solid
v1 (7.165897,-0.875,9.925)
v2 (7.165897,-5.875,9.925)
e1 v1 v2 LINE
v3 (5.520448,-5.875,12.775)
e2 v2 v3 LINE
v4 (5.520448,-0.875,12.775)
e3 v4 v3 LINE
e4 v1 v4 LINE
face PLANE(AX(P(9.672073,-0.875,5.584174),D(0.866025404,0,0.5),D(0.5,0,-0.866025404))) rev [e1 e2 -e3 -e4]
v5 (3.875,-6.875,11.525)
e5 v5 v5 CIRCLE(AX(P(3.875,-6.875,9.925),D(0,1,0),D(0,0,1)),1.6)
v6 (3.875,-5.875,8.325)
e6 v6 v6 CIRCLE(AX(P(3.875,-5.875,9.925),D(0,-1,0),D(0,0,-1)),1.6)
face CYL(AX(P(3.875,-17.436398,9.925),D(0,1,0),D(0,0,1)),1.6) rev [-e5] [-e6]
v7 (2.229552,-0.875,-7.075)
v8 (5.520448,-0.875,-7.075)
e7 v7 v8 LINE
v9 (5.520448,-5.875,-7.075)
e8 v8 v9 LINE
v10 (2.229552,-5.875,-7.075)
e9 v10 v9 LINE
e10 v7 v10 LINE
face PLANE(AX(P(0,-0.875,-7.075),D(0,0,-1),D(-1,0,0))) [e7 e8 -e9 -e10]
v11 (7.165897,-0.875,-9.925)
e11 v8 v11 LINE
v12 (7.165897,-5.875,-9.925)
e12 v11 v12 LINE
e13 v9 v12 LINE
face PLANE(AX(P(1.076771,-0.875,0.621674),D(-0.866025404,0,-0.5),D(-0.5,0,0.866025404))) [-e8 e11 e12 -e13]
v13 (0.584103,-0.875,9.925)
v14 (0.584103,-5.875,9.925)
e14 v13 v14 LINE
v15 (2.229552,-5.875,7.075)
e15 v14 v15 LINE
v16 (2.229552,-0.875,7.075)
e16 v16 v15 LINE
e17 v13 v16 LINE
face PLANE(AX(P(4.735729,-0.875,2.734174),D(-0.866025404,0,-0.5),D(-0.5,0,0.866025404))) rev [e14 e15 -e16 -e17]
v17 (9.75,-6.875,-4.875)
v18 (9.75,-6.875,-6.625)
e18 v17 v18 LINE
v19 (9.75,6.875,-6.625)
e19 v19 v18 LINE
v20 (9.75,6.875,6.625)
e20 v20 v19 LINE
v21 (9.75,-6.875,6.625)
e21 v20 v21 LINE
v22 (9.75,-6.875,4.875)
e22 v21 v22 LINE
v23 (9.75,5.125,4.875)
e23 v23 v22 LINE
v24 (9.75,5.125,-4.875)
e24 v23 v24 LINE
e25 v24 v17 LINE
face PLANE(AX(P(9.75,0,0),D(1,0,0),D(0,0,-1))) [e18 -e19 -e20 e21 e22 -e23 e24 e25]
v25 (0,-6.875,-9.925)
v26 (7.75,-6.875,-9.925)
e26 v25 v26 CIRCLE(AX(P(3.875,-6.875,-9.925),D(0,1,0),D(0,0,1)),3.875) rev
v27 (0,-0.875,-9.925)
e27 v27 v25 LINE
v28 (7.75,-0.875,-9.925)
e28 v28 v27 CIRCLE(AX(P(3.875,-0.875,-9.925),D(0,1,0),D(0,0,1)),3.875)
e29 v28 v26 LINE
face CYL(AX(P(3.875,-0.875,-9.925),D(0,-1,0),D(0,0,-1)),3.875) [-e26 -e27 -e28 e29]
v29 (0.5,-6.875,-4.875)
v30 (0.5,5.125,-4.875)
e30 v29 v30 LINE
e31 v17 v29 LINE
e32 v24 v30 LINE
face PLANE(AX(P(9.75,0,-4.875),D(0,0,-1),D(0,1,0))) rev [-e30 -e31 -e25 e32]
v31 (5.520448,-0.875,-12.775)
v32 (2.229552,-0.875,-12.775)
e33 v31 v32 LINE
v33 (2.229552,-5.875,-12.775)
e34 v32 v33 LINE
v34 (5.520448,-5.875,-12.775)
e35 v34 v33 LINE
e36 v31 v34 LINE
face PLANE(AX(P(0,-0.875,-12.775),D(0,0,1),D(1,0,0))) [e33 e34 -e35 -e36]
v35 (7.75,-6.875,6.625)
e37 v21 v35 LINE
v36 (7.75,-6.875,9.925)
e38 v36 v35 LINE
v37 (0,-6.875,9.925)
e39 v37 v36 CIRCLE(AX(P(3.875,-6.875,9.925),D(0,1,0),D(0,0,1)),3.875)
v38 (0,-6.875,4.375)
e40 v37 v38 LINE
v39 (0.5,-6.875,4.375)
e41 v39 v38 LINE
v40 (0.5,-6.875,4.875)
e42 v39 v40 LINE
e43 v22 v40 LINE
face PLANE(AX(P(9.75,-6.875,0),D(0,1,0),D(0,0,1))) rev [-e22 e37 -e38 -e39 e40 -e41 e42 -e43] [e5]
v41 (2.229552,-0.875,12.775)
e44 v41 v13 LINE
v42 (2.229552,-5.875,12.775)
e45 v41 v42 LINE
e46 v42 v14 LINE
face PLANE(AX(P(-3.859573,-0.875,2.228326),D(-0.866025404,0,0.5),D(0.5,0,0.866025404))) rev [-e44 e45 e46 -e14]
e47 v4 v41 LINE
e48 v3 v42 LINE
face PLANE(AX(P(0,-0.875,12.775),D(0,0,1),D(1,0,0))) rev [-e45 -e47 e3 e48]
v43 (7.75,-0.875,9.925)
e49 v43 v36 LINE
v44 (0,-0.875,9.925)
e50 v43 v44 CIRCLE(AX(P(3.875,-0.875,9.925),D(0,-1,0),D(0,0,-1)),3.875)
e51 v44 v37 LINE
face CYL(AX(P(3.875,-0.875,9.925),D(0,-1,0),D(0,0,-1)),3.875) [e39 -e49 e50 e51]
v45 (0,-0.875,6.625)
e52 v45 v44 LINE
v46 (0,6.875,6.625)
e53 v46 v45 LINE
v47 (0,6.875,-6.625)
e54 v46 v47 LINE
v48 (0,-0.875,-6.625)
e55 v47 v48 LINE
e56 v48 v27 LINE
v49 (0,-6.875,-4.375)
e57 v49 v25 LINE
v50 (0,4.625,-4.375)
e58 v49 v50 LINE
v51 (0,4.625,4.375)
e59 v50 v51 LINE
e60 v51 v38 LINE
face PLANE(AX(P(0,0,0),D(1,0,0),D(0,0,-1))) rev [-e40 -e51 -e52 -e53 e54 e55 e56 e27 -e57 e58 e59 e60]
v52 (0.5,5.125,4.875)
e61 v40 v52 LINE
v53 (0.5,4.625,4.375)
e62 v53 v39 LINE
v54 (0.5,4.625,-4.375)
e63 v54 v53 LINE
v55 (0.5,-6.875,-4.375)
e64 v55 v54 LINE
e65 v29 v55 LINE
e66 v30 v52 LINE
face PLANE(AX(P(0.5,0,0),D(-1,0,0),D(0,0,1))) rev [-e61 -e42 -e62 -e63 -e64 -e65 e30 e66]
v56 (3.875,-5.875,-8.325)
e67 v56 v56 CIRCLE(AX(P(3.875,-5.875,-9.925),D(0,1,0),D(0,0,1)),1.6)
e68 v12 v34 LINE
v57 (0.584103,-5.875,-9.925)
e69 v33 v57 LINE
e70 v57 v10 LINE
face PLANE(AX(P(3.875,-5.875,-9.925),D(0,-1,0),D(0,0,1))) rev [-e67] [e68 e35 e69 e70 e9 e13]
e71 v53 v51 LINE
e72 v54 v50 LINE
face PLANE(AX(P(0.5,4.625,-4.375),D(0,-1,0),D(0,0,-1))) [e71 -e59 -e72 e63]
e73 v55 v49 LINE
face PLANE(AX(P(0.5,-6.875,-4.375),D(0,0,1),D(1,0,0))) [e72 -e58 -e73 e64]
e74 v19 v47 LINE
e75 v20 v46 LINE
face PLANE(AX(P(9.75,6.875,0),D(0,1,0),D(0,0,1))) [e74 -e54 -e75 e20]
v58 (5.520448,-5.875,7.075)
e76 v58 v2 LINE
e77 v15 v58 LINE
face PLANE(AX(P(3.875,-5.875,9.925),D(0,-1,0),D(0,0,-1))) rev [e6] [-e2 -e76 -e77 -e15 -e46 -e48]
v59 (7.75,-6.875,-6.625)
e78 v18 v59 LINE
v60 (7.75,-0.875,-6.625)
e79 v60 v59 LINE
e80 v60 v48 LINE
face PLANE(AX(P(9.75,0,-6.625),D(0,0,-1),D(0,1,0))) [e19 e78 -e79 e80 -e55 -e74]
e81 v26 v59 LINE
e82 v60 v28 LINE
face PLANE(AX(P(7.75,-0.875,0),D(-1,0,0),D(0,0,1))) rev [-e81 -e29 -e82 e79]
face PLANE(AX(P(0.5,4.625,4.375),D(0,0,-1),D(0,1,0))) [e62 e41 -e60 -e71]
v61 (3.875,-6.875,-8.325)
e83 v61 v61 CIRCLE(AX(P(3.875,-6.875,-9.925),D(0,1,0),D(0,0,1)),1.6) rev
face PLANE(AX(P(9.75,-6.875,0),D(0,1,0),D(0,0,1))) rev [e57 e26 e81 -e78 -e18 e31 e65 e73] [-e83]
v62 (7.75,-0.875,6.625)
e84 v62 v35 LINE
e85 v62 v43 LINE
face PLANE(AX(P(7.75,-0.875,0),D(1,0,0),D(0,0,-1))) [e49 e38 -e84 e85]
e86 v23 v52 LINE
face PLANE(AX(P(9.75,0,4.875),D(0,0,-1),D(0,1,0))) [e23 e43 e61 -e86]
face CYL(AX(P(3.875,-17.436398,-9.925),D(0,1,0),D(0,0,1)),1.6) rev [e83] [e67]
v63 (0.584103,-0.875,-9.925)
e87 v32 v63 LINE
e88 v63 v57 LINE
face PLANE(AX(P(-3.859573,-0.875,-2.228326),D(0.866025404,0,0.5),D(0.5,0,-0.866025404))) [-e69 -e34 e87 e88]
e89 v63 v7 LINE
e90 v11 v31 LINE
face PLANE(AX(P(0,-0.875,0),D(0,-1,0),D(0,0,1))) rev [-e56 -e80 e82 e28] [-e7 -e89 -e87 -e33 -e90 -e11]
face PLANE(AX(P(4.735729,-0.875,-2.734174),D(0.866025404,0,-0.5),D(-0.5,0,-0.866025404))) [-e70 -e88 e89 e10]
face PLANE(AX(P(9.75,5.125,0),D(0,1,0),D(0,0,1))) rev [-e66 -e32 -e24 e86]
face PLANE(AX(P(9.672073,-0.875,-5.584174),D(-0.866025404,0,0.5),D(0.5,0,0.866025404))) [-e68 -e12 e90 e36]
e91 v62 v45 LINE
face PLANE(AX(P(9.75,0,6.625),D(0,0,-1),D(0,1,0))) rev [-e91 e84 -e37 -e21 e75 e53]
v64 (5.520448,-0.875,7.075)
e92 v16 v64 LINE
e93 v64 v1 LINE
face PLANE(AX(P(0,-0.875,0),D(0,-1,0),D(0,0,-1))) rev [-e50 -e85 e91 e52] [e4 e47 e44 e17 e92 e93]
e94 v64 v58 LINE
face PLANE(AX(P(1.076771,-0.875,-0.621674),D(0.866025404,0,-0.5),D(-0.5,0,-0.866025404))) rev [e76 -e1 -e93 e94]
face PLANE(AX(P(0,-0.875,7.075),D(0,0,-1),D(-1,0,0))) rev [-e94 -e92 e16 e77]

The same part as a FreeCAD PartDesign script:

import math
import FreeCAD as App
import Part
import Sketcher
from FreeCAD import Vector
Q = App.Units.Quantity

doc = App.newDocument("Part")
body = doc.addObject("PartDesign::Body", "Body")

sketch1 = body.newObject("Sketcher::SketchObject", "Sketch")
sketch1.AttachmentSupport = (doc.getObject("YZ_Plane"), [""])
sketch1.MapMode = "FlatFace"
sketch1.addGeometry([
    Part.LineSegment(Vector(-6.9, 4.9, 0), Vector(5.1, 4.9, 0)),
    Part.LineSegment(Vector(5.1, 4.9, 0), Vector(5.1, -4.9, 0)),
    Part.LineSegment(Vector(5.1, -4.9, 0), Vector(-6.9, -4.9, 0)),
    Part.LineSegment(Vector(-6.9, -4.9, 0), Vector(-6.9, -6.6, 0)),
    Part.LineSegment(Vector(-6.9, -6.6, 0), Vector(6.9, -6.6, 0)),
    Part.LineSegment(Vector(6.9, -6.6, 0), Vector(6.9, 6.6, 0)),
    Part.LineSegment(Vector(6.9, 6.6, 0), Vector(-6.9, 6.6, 0)),
    Part.LineSegment(Vector(-6.9, 6.6, 0), Vector(-6.9, 4.9, 0)),
], False)
sketch1.addConstraint([
    Sketcher.Constraint("Coincident", 0, 2, 1, 1),
    Sketcher.Constraint("Coincident", 1, 2, 2, 1),
    Sketcher.Constraint("Coincident", 2, 2, 3, 1),
    Sketcher.Constraint("Coincident", 3, 2, 4, 1),
    Sketcher.Constraint("Coincident", 4, 2, 5, 1),
    Sketcher.Constraint("Coincident", 5, 2, 6, 1),
    Sketcher.Constraint("Coincident", 6, 2, 7, 1),
    Sketcher.Constraint("Coincident", 7, 2, 0, 1),
    Sketcher.Constraint("Horizontal", 0),
    Sketcher.Constraint("Vertical", 1),
    Sketcher.Constraint("Horizontal", 2),
    Sketcher.Constraint("Vertical", 3),
    Sketcher.Constraint("Horizontal", 4),
    Sketcher.Constraint("Vertical", 5),
    Sketcher.Constraint("Horizontal", 6),
    Sketcher.Constraint("Vertical", 7),
    Sketcher.Constraint("Symmetric", 3, 2, 5, 2, -1, 1),
    Sketcher.Constraint("Symmetric", 2, 2, 7, 2, -1),
    Sketcher.Constraint("DistanceX", 0, 1, 0, 2, 12.0),
    Sketcher.Constraint("DistanceX", 4, 1, 4, 2, 13.75),
    Sketcher.Constraint("DistanceY", 1, 2, 1, 1, 9.75),
    Sketcher.Constraint("DistanceY", 3, 2, 3, 1, 1.75),
])
pad1 = body.newObject("PartDesign::Pad", "Pad")
pad1.Profile = sketch1
pad1.Length = 9.75

sketch2 = body.newObject("Sketcher::SketchObject", "Sketch001")
sketch2.AttachmentSupport = (doc.getObject("XZ_Plane"), [""])
sketch2.MapMode = "FlatFace"
sketch2.AttachmentOffset = App.Placement(Vector(0, 0, 5.875), App.Rotation())
sketch2.addGeometry([
    Part.LineSegment(Vector(0, 9.9, 0), Vector(0, 4.9, 0)),
    Part.LineSegment(Vector(0, 4.9, 0), Vector(7.8, 4.9, 0)),
    Part.LineSegment(Vector(7.8, 4.9, 0), Vector(7.8, 9.9, 0)),
    Part.ArcOfCircle(Part.Circle(Vector(3.9, 9.9, 0), Vector(0, 0, 1), 3.9), math.radians(0), math.radians(180)),
    Part.LineSegment(Vector(2.2, 7.1, 0), Vector(0.6, 9.9, 0)),
    Part.LineSegment(Vector(0.6, 9.9, 0), Vector(2.2, 12.8, 0)),
    Part.LineSegment(Vector(2.2, 12.8, 0), Vector(5.5, 12.8, 0)),
    Part.LineSegment(Vector(5.5, 12.8, 0), Vector(7.2, 9.9, 0)),
    Part.LineSegment(Vector(7.2, 9.9, 0), Vector(5.5, 7.1, 0)),
    Part.LineSegment(Vector(5.5, 7.1, 0), Vector(2.2, 7.1, 0)),
], False)
sketch2.addConstraint([
    Sketcher.Constraint("Coincident", 0, 2, 1, 1),
    Sketcher.Constraint("Coincident", 1, 2, 2, 1),
    Sketcher.Constraint("Tangent", 2, 2, 3, 1),
    Sketcher.Constraint("Tangent", 3, 2, 0, 1),
    Sketcher.Constraint("Coincident", 4, 2, 5, 1),
    Sketcher.Constraint("Coincident", 5, 2, 6, 1),
    Sketcher.Constraint("Coincident", 6, 2, 7, 1),
    Sketcher.Constraint("Coincident", 7, 2, 8, 1),
    Sketcher.Constraint("Coincident", 8, 2, 9, 1),
    Sketcher.Constraint("Coincident", 9, 2, 4, 1),
    Sketcher.Constraint("Vertical", 0),
    Sketcher.Constraint("Horizontal", 1),
    Sketcher.Constraint("Vertical", 2),
    Sketcher.Constraint("Horizontal", 6),
    Sketcher.Constraint("Horizontal", 9),
    Sketcher.Constraint("PointOnObject", 0, 2, -2),
    Sketcher.Constraint("Parallel", 4, 7),
    Sketcher.Constraint("Parallel", 5, 8),
    Sketcher.Constraint("Horizontal", 3, 2, 4, 2),
    Sketcher.Constraint("Horizontal", 4, 2, 7, 2),
    Sketcher.Constraint("Vertical", 6, 2, 8, 2),
    Sketcher.Constraint("Vertical", 5, 2, 9, 2),
    Sketcher.Constraint("Angle", 4, Q("120 deg")),
    Sketcher.Constraint("Radius", 3, 3.875),
    Sketcher.Constraint("DistanceY", 0, 2, 0, 1, 5.05),
    Sketcher.Constraint("DistanceY", 0, 2, 5, 2, 7.9),
    Sketcher.Constraint("DistanceY", -1, 1, 3, 3, 9.925),
    Sketcher.Constraint("DistanceX", 6, 1, 6, 2, 3.290897),
    Sketcher.Constraint("DistanceX", -1, 1, 5, 2, 2.229552),
])
pad2 = body.newObject("PartDesign::Pad", "Pad001")
pad2.Profile = sketch2
pad2.Length = 5
pad2.Reversed = True

sketch3 = body.newObject("Sketcher::SketchObject", "Sketch002")
sketch3.AttachmentSupport = (doc.getObject("XZ_Plane"), [""])
sketch3.MapMode = "FlatFace"
sketch3.AttachmentOffset = App.Placement(Vector(0, 0, 6.875), App.Rotation())
sketch3.addGeometry([
    Part.LineSegment(Vector(7.8, 6.6, 0), Vector(7.8, 9.9, 0)),
    Part.ArcOfCircle(Part.Circle(Vector(3.9, 9.9, 0), Vector(0, 0, 1), 3.9), math.radians(0), math.radians(180)),
    Part.LineSegment(Vector(0, 9.9, 0), Vector(0, 6.6, 0)),
    Part.LineSegment(Vector(0, 6.6, 0), Vector(7.8, 6.6, 0)),
    Part.Circle(Vector(3.9, 9.9, 0), Vector(0, 0, 1), 1.6),
], False)
sketch3.addConstraint([
    Sketcher.Constraint("Tangent", 0, 2, 1, 1),
    Sketcher.Constraint("Tangent", 1, 2, 2, 1),
    Sketcher.Constraint("Coincident", 2, 2, 3, 1),
    Sketcher.Constraint("Coincident", 3, 2, 0, 1),
    Sketcher.Constraint("Vertical", 0),
    Sketcher.Constraint("Vertical", 2),
    Sketcher.Constraint("Horizontal", 3),
    Sketcher.Constraint("Coincident", 4, 3, 1, 3),
    Sketcher.Constraint("PointOnObject", 1, 2, -2),
    Sketcher.Constraint("Diameter", 4, 3.2),
    Sketcher.Constraint("DistanceY", 0, 1, 0, 2, 3.3),
    Sketcher.Constraint("Radius", 1, 3.875),
    Sketcher.Constraint("DistanceY", -1, 1, 1, 3, 9.925),
])
pad3 = body.newObject("PartDesign::Pad", "Pad002")
pad3.Profile = sketch3
pad3.Length = 1
pad3.Reversed = True
doc.recompute()

mirrored = body.newObject("PartDesign::Mirrored", "Mirrored")
mirrored.Originals = [pad2, pad3]
mirrored.MirrorPlane = (doc.getObject("XY_Plane"), [""])
body.Tip = mirrored

sketch4 = body.newObject("Sketcher::SketchObject", "Sketch003")
sketch4.AttachmentSupport = (doc.getObject("YZ_Plane"), [""])
sketch4.MapMode = "FlatFace"
sketch4.addGeometry([
    Part.LineSegment(Vector(6.9, -6.6, 0), Vector(-6.9, -6.6, 0)),
    Part.LineSegment(Vector(-6.9, -6.6, 0), Vector(-6.9, -4.4, 0)),
    Part.LineSegment(Vector(-6.9, -4.4, 0), Vector(4.6, -4.4, 0)),
    Part.LineSegment(Vector(4.6, -4.4, 0), Vector(4.6, 4.4, 0)),
    Part.LineSegment(Vector(4.6, 4.4, 0), Vector(-6.9, 4.4, 0)),
    Part.LineSegment(Vector(-6.9, 4.4, 0), Vector(-6.9, 6.6, 0)),
    Part.LineSegment(Vector(-6.9, 6.6, 0), Vector(6.9, 6.6, 0)),
    Part.LineSegment(Vector(6.9, 6.6, 0), Vector(6.9, -6.6, 0)),
], False)
sketch4.addConstraint([
    Sketcher.Constraint("Coincident", 0, 2, 1, 1),
    Sketcher.Constraint("Coincident", 1, 2, 2, 1),
    Sketcher.Constraint("Coincident", 2, 2, 3, 1),
    Sketcher.Constraint("Coincident", 3, 2, 4, 1),
    Sketcher.Constraint("Coincident", 4, 2, 5, 1),
    Sketcher.Constraint("Coincident", 5, 2, 6, 1),
    Sketcher.Constraint("Coincident", 6, 2, 7, 1),
    Sketcher.Constraint("Coincident", 7, 2, 0, 1),
    Sketcher.Constraint("Horizontal", 0),
    Sketcher.Constraint("Vertical", 1),
    Sketcher.Constraint("Horizontal", 2),
    Sketcher.Constraint("Vertical", 3),
    Sketcher.Constraint("Horizontal", 4),
    Sketcher.Constraint("Vertical", 5),
    Sketcher.Constraint("Horizontal", 6),
    Sketcher.Constraint("Vertical", 7),
    Sketcher.Constraint("Symmetric", 0, 2, 6, 2, -1, 1),
    Sketcher.Constraint("Symmetric", 1, 2, 4, 2, -1),
    Sketcher.Constraint("DistanceX", 2, 1, 2, 2, 11.5),
    Sketcher.Constraint("DistanceY", 0, 2, 3, 2, 11.0),
    Sketcher.Constraint("DistanceX", 0, 2, 0, 1, 13.75),
    Sketcher.Constraint("DistanceY", 1, 1, 1, 2, 2.25),
])
pad4 = body.newObject("PartDesign::Pad", "Pad003")
pad4.Profile = sketch4
pad4.Length = 0.5

doc.recompute()
